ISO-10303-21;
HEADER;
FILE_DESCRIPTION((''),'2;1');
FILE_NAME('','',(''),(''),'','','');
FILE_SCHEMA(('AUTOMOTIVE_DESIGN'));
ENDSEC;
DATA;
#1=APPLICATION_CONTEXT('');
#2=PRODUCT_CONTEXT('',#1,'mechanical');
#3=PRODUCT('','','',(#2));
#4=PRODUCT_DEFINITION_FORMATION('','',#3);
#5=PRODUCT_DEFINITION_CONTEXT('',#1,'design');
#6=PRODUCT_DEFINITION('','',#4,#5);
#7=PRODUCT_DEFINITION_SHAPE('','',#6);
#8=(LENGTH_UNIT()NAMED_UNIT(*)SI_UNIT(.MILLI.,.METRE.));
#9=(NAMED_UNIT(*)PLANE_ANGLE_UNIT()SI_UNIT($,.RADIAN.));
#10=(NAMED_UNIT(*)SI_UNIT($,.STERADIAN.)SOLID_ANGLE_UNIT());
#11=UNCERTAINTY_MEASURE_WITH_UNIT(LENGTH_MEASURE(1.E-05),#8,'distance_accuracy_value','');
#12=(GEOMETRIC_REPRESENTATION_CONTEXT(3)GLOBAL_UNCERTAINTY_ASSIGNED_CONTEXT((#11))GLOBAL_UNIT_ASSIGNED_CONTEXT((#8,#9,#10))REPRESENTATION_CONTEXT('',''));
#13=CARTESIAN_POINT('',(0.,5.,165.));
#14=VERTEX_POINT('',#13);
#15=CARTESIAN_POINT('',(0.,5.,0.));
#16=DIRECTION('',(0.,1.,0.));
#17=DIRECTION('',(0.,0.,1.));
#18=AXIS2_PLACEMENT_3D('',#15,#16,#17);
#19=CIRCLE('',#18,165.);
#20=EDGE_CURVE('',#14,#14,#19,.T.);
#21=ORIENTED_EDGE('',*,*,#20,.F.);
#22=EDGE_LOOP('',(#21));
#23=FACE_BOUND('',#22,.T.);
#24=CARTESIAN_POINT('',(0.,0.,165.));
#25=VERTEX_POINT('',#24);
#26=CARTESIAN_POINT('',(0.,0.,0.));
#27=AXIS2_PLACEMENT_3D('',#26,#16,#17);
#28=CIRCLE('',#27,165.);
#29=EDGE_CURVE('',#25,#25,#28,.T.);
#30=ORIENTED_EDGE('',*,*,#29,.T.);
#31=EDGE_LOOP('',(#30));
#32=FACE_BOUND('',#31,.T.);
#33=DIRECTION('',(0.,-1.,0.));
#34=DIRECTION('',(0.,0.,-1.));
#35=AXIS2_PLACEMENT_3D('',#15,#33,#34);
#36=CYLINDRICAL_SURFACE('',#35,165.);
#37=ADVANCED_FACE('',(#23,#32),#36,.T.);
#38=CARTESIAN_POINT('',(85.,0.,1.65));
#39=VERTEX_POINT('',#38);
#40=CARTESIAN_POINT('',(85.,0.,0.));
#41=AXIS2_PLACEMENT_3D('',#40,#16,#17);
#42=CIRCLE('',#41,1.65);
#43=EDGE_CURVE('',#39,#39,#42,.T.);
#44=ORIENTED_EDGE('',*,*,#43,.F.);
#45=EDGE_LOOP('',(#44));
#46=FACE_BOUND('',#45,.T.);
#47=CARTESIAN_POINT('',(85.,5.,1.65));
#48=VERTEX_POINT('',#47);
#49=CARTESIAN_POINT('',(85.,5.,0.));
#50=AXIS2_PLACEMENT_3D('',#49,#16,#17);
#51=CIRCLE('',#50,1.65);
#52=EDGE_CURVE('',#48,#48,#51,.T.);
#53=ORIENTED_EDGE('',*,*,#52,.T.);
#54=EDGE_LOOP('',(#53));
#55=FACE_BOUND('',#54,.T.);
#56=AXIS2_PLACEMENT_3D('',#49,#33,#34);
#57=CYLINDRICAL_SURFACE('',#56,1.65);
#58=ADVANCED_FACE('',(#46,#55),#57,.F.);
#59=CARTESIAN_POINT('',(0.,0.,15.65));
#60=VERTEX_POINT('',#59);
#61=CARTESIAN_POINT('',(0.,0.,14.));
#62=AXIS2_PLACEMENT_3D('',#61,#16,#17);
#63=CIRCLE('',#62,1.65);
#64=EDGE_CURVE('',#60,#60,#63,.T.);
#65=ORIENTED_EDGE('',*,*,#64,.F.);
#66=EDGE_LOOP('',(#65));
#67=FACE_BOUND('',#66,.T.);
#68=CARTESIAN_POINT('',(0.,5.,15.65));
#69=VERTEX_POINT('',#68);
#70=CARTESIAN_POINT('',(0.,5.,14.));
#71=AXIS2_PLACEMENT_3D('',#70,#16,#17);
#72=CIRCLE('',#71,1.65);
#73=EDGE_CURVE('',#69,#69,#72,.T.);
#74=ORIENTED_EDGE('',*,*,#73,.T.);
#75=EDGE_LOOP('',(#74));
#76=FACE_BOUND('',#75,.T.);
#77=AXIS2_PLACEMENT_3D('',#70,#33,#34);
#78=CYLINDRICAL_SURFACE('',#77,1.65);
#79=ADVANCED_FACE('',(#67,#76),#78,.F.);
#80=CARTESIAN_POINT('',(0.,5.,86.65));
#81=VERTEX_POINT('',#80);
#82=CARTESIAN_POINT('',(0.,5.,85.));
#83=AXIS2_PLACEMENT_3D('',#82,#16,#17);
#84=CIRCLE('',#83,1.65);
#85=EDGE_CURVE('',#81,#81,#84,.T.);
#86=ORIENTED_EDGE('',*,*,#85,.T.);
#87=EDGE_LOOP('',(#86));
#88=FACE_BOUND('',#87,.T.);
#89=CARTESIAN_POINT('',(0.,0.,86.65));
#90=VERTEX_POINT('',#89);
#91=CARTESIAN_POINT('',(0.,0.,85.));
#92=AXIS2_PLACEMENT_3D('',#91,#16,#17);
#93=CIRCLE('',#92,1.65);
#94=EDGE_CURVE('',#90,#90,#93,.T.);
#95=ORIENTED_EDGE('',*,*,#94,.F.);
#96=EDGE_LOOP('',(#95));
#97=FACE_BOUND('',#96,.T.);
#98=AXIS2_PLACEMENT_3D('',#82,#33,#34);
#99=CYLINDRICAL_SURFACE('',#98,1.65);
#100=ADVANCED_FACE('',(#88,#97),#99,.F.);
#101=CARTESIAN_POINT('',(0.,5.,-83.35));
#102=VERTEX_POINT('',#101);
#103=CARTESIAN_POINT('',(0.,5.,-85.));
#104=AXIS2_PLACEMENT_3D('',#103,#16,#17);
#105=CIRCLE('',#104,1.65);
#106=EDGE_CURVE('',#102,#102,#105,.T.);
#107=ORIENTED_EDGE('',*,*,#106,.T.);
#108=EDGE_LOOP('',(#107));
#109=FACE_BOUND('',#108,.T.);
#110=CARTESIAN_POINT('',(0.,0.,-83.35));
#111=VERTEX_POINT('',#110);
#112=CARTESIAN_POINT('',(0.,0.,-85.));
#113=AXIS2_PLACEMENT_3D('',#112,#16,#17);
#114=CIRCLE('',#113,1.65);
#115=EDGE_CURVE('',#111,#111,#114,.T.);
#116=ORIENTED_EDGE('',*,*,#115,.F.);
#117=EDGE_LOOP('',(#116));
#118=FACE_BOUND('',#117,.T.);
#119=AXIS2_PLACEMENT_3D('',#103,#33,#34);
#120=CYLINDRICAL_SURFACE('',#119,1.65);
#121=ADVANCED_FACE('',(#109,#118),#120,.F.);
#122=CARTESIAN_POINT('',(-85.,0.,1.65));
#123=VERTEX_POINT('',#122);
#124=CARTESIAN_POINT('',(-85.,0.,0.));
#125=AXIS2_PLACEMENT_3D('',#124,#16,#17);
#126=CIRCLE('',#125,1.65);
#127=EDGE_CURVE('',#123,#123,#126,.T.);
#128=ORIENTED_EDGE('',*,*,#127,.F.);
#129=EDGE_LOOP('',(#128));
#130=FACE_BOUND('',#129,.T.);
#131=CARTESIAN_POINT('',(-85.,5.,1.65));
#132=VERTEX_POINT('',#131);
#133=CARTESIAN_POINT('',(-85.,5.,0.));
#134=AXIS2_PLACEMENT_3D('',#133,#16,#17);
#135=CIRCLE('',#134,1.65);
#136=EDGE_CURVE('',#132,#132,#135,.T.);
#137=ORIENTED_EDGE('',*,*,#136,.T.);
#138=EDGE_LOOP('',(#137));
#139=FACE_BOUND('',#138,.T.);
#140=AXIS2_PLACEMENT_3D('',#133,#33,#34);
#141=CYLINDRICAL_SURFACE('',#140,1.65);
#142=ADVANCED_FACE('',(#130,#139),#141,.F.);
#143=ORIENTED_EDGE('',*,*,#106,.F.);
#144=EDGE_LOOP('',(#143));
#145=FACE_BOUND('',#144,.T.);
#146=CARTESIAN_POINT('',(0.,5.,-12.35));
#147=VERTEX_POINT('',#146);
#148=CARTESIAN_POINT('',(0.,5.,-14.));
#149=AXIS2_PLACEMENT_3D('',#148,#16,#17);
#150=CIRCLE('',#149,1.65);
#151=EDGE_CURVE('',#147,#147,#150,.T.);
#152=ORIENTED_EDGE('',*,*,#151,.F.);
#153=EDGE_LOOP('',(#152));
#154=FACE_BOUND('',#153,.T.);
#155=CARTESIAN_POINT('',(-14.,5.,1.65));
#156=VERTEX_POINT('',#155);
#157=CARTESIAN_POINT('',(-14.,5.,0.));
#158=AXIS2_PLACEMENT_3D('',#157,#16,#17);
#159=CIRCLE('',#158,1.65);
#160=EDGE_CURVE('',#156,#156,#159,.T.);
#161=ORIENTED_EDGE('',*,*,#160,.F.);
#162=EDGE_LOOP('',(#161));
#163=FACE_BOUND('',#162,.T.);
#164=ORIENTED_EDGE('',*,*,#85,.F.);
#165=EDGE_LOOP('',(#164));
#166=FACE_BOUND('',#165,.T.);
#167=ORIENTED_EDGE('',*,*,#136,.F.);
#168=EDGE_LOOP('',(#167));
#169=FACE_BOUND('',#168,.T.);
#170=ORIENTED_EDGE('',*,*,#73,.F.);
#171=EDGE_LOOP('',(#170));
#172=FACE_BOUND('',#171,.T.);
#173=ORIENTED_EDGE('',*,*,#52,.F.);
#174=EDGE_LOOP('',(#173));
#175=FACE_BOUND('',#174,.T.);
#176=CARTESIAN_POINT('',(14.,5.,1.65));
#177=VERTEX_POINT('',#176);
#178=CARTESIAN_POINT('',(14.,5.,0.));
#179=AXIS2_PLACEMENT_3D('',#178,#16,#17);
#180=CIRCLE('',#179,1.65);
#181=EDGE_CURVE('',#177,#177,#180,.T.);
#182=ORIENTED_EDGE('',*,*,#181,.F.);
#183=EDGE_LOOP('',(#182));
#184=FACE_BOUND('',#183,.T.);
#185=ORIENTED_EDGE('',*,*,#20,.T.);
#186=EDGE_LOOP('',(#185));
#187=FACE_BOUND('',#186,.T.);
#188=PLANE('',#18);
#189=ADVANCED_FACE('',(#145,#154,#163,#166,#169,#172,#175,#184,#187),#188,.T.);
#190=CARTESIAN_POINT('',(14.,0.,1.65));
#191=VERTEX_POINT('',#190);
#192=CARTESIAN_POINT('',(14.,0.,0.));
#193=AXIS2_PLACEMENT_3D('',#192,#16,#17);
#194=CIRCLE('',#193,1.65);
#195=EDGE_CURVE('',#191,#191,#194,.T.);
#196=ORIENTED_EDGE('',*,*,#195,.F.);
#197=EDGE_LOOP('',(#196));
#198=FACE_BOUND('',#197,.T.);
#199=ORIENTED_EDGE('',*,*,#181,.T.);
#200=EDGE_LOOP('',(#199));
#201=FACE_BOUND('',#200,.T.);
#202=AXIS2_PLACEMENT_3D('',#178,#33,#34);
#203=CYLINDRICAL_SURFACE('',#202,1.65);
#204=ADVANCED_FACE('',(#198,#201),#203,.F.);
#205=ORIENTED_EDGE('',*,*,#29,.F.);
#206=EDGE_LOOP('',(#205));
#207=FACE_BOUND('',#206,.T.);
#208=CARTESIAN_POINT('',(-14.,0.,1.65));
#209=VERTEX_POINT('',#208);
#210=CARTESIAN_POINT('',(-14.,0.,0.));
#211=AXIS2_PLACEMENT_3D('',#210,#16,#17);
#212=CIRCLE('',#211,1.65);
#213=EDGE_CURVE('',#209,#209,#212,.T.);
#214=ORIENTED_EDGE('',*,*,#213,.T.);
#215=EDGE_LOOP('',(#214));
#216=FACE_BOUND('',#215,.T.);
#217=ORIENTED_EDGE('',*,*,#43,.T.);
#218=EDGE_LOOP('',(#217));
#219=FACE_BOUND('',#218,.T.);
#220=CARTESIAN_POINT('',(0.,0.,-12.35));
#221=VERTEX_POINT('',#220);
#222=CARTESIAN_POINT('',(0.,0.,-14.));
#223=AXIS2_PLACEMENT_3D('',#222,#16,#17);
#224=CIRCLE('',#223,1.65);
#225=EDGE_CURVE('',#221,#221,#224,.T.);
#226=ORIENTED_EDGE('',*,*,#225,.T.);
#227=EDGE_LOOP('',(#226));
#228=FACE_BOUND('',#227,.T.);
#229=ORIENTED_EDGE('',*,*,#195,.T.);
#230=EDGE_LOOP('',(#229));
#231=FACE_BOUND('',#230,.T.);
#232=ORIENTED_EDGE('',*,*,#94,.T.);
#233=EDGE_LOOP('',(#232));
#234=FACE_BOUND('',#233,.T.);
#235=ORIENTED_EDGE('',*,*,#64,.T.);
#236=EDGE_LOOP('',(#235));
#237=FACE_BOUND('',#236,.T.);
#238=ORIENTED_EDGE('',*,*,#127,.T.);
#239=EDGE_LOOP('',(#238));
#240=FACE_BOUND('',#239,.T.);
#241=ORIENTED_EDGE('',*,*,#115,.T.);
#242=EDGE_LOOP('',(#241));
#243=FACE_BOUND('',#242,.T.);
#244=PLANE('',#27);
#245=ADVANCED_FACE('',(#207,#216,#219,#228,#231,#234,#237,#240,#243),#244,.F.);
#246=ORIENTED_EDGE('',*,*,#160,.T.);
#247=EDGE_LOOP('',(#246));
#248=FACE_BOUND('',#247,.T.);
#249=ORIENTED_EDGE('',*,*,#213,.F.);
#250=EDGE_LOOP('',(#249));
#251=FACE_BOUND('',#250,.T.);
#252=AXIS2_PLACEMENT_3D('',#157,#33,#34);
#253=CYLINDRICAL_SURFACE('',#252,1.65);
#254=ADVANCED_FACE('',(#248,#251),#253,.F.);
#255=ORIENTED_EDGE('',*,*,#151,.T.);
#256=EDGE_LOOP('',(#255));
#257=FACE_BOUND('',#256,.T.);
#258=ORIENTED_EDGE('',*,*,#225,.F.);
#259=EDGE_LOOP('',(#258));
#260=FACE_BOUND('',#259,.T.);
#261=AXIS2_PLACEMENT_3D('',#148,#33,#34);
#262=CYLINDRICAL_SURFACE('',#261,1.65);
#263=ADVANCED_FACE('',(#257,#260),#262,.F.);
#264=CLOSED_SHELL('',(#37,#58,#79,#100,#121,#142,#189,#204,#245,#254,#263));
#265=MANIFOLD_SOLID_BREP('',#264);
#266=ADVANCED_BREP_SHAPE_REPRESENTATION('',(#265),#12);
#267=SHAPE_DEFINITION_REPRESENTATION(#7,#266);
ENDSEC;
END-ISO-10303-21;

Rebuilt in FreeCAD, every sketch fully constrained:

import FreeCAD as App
import Part
import Sketcher

doc = App.newDocument("Part")
body = doc.addObject("PartDesign::Body", "Body")

# Sketch on XZ plane
sketch1 = doc.addObject("Sketcher::SketchObject", "Sketch")
body.addObject(sketch1)
sketch1.AttachmentSupport = (doc.XZ_Plane, [""])
sketch1.MapMode = "FlatFace"
sketch1.addGeometry(Part.Circle(App.Vector(0, 0, 0), App.Vector(0, 0, 1), 165), False)
sketch1.addGeometry(Part.Circle(App.Vector(0, -85, 0), App.Vector(0, 0, 1), 1.65), False)
sketch1.addGeometry(Part.Circle(App.Vector(-85, 0, 0), App.Vector(0, 0, 1), 1.65), False)
sketch1.addGeometry(Part.Circle(App.Vector(-14, 0, 0), App.Vector(0, 0, 1), 1.65), False)
sketch1.addGeometry(Part.Circle(App.Vector(0, -14, 0), App.Vector(0, 0, 1), 1.65), False)
sketch1.addGeometry(Part.Circle(App.Vector(14, 0, 0), App.Vector(0, 0, 1), 1.65), False)
sketch1.addGeometry(Part.Circle(App.Vector(85, 0, 0), App.Vector(0, 0, 1), 1.65), False)
sketch1.addGeometry(Part.Circle(App.Vector(0, 14, 0), App.Vector(0, 0, 1), 1.65), False)
sketch1.addGeometry(Part.Circle(App.Vector(0, 85, 0), App.Vector(0, 0, 1), 1.65), False)
sketch1.addConstraint(Sketcher.Constraint("Coincident", 0, 3, -1, 1))
sketch1.addConstraint(Sketcher.Constraint("Equal", 1, 2))
sketch1.addConstraint(Sketcher.Constraint("Equal", 2, 3))
sketch1.addConstraint(Sketcher.Constraint("Equal", 3, 4))
sketch1.addConstraint(Sketcher.Constraint("Equal", 4, 5))
sketch1.addConstraint(Sketcher.Constraint("Equal", 5, 6))
sketch1.addConstraint(Sketcher.Constraint("Equal", 6, 7))
sketch1.addConstraint(Sketcher.Constraint("Equal", 7, 8))
sketch1.addConstraint(Sketcher.Constraint("Symmetric", 3, 3, 5, 3, -1, 1))
sketch1.addConstraint(Sketcher.Constraint("Symmetric", 2, 3, 6, 3, -1, 1))
sketch1.addConstraint(Sketcher.Constraint("Symmetric", 4, 3, 7, 3, -1, 1))
sketch1.addConstraint(Sketcher.Constraint("Symmetric", 1, 3, 8, 3, -1, 1))
sketch1.addConstraint(Sketcher.Constraint("PointOnObject", 1, 3, -2))
sketch1.addConstraint(Sketcher.Constraint("PointOnObject", 2, 3, -1))
sketch1.addConstraint(Sketcher.Constraint("PointOnObject", 3, 3, -1))
sketch1.addConstraint(Sketcher.Constraint("PointOnObject", 4, 3, -2))
sketch1.addConstraint(Sketcher.Constraint("Diameter", 0, 330.0))
sketch1.addConstraint(Sketcher.Constraint("Diameter", 1, 3.3))
sketch1.addConstraint(Sketcher.Constraint("DistanceY", 1, 3, -1, 1, 85.0))
sketch1.addConstraint(Sketcher.Constraint("DistanceX", 2, 3, -1, 1, 85.0))
sketch1.addConstraint(Sketcher.Constraint("DistanceX", 3, 3, -1, 1, 14.0))
sketch1.addConstraint(Sketcher.Constraint("DistanceY", 4, 3, -1, 1, 14.0))
pad1 = doc.addObject("PartDesign::Pad", "Pad")
body.addObject(pad1)
pad1.Profile = sketch1
pad1.Length = 5
pad1.Reversed = True

doc.recompute()
